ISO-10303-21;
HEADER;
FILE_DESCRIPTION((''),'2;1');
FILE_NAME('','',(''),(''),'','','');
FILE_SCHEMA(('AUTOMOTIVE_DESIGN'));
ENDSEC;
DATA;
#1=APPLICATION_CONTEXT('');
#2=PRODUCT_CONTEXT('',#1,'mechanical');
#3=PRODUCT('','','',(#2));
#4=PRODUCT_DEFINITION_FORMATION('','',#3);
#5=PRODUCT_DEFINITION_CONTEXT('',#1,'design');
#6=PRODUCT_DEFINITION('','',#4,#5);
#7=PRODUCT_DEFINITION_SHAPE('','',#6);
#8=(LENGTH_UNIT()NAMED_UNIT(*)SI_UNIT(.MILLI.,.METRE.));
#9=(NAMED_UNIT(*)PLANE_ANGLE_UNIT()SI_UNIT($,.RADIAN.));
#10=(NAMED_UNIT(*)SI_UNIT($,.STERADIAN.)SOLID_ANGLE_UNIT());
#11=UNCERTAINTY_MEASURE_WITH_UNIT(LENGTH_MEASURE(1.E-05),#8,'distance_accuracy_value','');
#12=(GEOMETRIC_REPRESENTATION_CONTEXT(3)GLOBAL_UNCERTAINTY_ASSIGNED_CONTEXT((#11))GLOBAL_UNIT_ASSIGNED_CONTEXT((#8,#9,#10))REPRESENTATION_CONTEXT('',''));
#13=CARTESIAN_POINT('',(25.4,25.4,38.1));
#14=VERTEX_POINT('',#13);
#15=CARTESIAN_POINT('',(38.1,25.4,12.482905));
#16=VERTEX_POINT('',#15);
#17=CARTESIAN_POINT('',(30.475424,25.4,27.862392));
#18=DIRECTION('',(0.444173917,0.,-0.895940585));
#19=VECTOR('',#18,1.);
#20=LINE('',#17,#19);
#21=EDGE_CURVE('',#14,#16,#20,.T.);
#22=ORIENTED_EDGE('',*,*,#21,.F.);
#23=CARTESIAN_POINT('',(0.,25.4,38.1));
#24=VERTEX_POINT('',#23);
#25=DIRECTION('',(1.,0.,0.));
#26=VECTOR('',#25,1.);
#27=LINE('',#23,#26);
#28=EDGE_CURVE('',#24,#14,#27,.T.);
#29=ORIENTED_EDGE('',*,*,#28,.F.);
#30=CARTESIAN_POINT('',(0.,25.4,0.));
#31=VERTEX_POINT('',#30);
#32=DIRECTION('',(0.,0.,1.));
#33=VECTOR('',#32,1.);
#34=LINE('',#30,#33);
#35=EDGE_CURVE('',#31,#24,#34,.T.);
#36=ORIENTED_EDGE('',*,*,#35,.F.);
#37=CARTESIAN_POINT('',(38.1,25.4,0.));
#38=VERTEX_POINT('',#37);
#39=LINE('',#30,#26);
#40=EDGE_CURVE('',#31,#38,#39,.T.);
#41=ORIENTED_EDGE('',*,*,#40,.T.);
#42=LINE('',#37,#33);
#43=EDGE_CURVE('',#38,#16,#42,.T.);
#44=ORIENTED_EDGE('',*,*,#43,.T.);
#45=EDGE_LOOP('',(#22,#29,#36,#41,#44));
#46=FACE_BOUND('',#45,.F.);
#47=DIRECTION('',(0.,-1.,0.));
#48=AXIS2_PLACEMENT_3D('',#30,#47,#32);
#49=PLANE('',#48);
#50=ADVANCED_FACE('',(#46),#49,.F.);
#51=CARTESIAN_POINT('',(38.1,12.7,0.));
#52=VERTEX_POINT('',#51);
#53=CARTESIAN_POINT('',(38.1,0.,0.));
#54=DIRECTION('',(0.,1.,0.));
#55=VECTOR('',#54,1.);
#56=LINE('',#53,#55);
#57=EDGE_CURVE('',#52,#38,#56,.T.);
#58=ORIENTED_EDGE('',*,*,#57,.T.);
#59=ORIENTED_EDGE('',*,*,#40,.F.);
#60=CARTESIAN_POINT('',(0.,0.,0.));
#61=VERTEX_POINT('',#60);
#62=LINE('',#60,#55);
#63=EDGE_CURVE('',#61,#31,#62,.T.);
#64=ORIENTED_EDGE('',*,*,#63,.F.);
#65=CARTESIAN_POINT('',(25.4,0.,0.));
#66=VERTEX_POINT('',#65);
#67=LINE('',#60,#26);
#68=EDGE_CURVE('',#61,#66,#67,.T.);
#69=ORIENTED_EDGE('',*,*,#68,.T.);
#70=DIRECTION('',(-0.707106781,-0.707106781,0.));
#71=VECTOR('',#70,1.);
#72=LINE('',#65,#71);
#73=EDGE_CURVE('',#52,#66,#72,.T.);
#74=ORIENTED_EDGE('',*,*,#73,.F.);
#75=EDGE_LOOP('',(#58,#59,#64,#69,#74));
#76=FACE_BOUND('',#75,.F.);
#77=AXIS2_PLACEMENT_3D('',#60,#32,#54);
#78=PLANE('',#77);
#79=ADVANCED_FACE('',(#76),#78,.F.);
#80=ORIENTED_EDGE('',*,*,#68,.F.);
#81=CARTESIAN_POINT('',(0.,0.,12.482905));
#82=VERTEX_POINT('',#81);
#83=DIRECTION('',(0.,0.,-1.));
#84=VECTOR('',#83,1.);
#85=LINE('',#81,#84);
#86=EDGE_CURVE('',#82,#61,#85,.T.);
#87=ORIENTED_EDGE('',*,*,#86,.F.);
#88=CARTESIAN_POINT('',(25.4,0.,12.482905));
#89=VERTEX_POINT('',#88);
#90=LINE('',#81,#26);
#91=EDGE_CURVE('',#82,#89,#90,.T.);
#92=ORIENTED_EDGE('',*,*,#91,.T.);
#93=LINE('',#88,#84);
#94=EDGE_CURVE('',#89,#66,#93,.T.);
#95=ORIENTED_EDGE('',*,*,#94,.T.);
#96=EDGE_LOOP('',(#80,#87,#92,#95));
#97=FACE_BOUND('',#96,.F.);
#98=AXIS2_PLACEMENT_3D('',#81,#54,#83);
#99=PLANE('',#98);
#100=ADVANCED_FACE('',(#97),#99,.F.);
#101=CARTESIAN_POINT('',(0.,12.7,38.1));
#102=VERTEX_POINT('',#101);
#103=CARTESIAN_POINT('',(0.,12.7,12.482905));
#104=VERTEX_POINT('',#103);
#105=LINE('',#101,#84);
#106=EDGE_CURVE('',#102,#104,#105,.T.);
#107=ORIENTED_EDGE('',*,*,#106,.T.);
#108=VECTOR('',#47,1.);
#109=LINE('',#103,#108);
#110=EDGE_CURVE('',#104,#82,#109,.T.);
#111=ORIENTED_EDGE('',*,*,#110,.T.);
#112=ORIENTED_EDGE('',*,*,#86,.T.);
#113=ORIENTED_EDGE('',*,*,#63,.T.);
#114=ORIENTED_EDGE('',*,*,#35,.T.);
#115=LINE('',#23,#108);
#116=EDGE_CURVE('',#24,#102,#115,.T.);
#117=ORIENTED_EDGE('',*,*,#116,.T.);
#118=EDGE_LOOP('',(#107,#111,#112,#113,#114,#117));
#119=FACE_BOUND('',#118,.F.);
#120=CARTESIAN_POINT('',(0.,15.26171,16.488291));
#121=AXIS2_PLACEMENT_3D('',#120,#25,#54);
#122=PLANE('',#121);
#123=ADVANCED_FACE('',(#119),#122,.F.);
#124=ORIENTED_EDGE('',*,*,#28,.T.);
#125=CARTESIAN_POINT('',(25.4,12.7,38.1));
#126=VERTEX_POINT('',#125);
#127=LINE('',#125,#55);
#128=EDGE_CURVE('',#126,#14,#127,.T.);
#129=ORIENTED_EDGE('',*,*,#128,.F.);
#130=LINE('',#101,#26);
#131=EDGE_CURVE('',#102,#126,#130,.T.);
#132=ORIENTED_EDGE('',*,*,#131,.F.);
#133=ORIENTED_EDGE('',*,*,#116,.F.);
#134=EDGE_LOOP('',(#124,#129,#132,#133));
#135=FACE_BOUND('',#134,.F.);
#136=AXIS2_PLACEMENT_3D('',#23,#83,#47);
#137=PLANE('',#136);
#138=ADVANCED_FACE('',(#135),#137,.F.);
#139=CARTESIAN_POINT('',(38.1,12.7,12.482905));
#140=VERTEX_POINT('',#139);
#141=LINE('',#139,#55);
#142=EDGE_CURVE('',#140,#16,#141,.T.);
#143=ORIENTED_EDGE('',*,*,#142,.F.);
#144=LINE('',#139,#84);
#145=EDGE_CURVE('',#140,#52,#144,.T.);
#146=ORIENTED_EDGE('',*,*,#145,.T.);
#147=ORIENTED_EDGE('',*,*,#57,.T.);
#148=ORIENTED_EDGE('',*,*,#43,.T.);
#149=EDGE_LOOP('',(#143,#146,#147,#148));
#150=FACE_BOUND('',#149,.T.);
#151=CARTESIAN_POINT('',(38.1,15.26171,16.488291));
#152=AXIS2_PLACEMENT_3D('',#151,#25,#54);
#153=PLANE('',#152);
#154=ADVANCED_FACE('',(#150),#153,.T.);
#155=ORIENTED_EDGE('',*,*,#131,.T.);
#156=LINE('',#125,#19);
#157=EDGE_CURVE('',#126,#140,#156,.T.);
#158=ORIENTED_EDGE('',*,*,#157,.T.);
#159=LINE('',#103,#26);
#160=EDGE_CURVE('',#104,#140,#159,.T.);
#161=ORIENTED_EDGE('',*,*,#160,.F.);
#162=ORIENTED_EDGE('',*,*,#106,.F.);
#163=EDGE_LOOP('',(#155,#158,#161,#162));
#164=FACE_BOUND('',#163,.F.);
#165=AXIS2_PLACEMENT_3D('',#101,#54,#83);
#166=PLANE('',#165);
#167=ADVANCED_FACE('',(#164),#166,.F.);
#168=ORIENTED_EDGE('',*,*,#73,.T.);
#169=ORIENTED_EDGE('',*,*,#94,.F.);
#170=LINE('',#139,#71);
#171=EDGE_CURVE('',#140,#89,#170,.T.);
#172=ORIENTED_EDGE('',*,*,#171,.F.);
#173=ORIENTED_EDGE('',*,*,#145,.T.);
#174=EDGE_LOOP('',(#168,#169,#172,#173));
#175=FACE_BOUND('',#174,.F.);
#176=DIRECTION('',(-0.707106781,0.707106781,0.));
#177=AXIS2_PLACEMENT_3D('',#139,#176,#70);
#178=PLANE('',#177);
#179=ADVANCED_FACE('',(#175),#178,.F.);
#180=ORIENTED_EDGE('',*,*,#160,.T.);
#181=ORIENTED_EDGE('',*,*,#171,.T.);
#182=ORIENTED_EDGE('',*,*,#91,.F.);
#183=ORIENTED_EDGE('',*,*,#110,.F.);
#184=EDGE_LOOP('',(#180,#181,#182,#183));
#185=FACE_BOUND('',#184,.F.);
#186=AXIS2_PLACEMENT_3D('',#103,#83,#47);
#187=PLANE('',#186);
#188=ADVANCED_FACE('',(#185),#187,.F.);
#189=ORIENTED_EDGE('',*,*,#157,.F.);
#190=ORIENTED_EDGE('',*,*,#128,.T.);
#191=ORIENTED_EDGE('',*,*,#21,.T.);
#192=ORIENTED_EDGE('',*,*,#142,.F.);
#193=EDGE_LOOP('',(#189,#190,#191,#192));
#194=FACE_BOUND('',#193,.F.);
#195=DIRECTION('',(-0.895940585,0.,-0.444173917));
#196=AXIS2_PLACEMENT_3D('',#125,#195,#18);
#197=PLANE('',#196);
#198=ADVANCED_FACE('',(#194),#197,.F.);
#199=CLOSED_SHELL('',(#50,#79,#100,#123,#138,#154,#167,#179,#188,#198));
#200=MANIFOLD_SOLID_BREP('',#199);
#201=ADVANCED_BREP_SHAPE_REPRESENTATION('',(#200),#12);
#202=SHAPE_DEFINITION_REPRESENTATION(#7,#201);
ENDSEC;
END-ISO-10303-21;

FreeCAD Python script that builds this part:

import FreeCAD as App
import Part
import Sketcher

V = App.Vector
Q = App.Units.Quantity

doc = App.newDocument("Part")
body = doc.addObject("PartDesign::Body", "Body")

sketch1 = body.newObject("Sketcher::SketchObject", "Sketch")
sketch1.AttachmentSupport = (doc.getObject("YZ_Plane"), [""])
sketch1.MapMode = "FlatFace"
sketch1.addGeometry([
    Part.LineSegment(V(13, 12, 0), V(0, 12, 0)),
    Part.LineSegment(V(0, 12, 0), V(0, 0, 0)),
    Part.LineSegment(V(0, 0, 0), V(25, 0, 0)),
    Part.LineSegment(V(25, 0, 0), V(25, 38, 0)),
    Part.LineSegment(V(25, 38, 0), V(13, 38, 0)),
    Part.LineSegment(V(13, 38, 0), V(13, 12, 0)),
], False)
sketch1.addConstraint([
    Sketcher.Constraint("Coincident", 0, 2, 1, 1),
    Sketcher.Constraint("Coincident", 1, 2, 2, 1),
    Sketcher.Constraint("Coincident", 2, 2, 3, 1),
    Sketcher.Constraint("Coincident", 3, 2, 4, 1),
    Sketcher.Constraint("Coincident", 4, 2, 5, 1),
    Sketcher.Constraint("Coincident", 5, 2, 0, 1),
    Sketcher.Constraint("Horizontal", 0),
    Sketcher.Constraint("Vertical", 1),
    Sketcher.Constraint("Horizontal", 2),
    Sketcher.Constraint("Vertical", 3),
    Sketcher.Constraint("Horizontal", 4),
    Sketcher.Constraint("Vertical", 5),
    Sketcher.Constraint("Coincident", 1, 2, -1, 1),
    Sketcher.Constraint("Equal", 0, 4),
    Sketcher.Constraint("DistanceX", 2, 1, 2, 2, Q("1 in")),
    Sketcher.Constraint("DistanceY", 3, 1, 3, 2, Q("1.5 in")),
    Sketcher.Constraint("DistanceY", 1, 2, 1, 1, Q("12.482905 mm")),
])
pad1 = body.newObject("PartDesign::Pad", "Pad")
pad1.Profile = sketch1
pad1.Length = Q("1.5 in")

sketch2 = body.newObject("Sketcher::SketchObject", "Sketch001")
sketch2.AttachmentSupport = (doc.getObject("XZ_Plane"), [""])
sketch2.MapMode = "FlatFace"
sketch2.AttachmentOffset = App.Placement(V(0, 0, -0.5 * 25.4), App.Rotation())
sketch2.addGeometry([
    Part.LineSegment(V(38, 38, 0), V(25, 38, 0)),
    Part.LineSegment(V(25, 38, 0), V(38, 12, 0)),
    Part.LineSegment(V(38, 12, 0), V(38, 38, 0)),
], False)
sketch2.addConstraint([
    Sketcher.Constraint("Coincident", 0, 2, 1, 1),
    Sketcher.Constraint("Coincident", 1, 2, 2, 1),
    Sketcher.Constraint("Coincident", 2, 2, 0, 1),
    Sketcher.Constraint("Horizontal", 0),
    Sketcher.Constraint("Vertical", 2),
    Sketcher.Constraint("DistanceX", 0, 2, 0, 1, Q("0.5 in")),
    Sketcher.Constraint("DistanceX", -1, 1, 0, 2, Q("1 in")),
    Sketcher.Constraint("DistanceY", -1, 1, 0, 2, Q("1.5 in")),
    Sketcher.Constraint("DistanceY", 2, 1, 2, 2, Q("25.617095 mm")),
])
pocket1 = body.newObject("PartDesign::Pocket", "Pocket")
pocket1.Profile = sketch2
pocket1.Length = Q("1 in")

sketch3 = body.newObject("Sketcher::SketchObject", "Sketch002")
sketch3.AttachmentSupport = (doc.getObject("XY_Plane"), [""])
sketch3.MapMode = "FlatFace"
sketch3.AttachmentOffset = App.Placement(V(0, 0, 12.482905), App.Rotation())
sketch3.addGeometry([
    Part.LineSegment(V(38, 0, 0), V(38, 13, 0)),
    Part.LineSegment(V(38, 13, 0), V(25, 0, 0)),
    Part.LineSegment(V(25, 0, 0), V(38, 0, 0)),
], False)
sketch3.addConstraint([
    Sketcher.Constraint("Coincident", 0, 2, 1, 1),
    Sketcher.Constraint("Coincident", 1, 2, 2, 1),
    Sketcher.Constraint("Coincident", 2, 2, 0, 1),
    Sketcher.Constraint("Vertical", 0),
    Sketcher.Constraint("Horizontal", 2),
    Sketcher.Constraint("PointOnObject", 1, 2, -1),
    Sketcher.Constraint("Equal", 2, 0),
    Sketcher.Constraint("DistanceX", 2, 1, 2, 2, Q("0.5 in")),
    Sketcher.Constraint("DistanceX", -1, 1, 1, 2, Q("1 in")),
])
pocket2 = body.newObject("PartDesign::Pocket", "Pocket001")
pocket2.Profile = sketch3
pocket2.Length = Q("1 in")

doc.recompute()
